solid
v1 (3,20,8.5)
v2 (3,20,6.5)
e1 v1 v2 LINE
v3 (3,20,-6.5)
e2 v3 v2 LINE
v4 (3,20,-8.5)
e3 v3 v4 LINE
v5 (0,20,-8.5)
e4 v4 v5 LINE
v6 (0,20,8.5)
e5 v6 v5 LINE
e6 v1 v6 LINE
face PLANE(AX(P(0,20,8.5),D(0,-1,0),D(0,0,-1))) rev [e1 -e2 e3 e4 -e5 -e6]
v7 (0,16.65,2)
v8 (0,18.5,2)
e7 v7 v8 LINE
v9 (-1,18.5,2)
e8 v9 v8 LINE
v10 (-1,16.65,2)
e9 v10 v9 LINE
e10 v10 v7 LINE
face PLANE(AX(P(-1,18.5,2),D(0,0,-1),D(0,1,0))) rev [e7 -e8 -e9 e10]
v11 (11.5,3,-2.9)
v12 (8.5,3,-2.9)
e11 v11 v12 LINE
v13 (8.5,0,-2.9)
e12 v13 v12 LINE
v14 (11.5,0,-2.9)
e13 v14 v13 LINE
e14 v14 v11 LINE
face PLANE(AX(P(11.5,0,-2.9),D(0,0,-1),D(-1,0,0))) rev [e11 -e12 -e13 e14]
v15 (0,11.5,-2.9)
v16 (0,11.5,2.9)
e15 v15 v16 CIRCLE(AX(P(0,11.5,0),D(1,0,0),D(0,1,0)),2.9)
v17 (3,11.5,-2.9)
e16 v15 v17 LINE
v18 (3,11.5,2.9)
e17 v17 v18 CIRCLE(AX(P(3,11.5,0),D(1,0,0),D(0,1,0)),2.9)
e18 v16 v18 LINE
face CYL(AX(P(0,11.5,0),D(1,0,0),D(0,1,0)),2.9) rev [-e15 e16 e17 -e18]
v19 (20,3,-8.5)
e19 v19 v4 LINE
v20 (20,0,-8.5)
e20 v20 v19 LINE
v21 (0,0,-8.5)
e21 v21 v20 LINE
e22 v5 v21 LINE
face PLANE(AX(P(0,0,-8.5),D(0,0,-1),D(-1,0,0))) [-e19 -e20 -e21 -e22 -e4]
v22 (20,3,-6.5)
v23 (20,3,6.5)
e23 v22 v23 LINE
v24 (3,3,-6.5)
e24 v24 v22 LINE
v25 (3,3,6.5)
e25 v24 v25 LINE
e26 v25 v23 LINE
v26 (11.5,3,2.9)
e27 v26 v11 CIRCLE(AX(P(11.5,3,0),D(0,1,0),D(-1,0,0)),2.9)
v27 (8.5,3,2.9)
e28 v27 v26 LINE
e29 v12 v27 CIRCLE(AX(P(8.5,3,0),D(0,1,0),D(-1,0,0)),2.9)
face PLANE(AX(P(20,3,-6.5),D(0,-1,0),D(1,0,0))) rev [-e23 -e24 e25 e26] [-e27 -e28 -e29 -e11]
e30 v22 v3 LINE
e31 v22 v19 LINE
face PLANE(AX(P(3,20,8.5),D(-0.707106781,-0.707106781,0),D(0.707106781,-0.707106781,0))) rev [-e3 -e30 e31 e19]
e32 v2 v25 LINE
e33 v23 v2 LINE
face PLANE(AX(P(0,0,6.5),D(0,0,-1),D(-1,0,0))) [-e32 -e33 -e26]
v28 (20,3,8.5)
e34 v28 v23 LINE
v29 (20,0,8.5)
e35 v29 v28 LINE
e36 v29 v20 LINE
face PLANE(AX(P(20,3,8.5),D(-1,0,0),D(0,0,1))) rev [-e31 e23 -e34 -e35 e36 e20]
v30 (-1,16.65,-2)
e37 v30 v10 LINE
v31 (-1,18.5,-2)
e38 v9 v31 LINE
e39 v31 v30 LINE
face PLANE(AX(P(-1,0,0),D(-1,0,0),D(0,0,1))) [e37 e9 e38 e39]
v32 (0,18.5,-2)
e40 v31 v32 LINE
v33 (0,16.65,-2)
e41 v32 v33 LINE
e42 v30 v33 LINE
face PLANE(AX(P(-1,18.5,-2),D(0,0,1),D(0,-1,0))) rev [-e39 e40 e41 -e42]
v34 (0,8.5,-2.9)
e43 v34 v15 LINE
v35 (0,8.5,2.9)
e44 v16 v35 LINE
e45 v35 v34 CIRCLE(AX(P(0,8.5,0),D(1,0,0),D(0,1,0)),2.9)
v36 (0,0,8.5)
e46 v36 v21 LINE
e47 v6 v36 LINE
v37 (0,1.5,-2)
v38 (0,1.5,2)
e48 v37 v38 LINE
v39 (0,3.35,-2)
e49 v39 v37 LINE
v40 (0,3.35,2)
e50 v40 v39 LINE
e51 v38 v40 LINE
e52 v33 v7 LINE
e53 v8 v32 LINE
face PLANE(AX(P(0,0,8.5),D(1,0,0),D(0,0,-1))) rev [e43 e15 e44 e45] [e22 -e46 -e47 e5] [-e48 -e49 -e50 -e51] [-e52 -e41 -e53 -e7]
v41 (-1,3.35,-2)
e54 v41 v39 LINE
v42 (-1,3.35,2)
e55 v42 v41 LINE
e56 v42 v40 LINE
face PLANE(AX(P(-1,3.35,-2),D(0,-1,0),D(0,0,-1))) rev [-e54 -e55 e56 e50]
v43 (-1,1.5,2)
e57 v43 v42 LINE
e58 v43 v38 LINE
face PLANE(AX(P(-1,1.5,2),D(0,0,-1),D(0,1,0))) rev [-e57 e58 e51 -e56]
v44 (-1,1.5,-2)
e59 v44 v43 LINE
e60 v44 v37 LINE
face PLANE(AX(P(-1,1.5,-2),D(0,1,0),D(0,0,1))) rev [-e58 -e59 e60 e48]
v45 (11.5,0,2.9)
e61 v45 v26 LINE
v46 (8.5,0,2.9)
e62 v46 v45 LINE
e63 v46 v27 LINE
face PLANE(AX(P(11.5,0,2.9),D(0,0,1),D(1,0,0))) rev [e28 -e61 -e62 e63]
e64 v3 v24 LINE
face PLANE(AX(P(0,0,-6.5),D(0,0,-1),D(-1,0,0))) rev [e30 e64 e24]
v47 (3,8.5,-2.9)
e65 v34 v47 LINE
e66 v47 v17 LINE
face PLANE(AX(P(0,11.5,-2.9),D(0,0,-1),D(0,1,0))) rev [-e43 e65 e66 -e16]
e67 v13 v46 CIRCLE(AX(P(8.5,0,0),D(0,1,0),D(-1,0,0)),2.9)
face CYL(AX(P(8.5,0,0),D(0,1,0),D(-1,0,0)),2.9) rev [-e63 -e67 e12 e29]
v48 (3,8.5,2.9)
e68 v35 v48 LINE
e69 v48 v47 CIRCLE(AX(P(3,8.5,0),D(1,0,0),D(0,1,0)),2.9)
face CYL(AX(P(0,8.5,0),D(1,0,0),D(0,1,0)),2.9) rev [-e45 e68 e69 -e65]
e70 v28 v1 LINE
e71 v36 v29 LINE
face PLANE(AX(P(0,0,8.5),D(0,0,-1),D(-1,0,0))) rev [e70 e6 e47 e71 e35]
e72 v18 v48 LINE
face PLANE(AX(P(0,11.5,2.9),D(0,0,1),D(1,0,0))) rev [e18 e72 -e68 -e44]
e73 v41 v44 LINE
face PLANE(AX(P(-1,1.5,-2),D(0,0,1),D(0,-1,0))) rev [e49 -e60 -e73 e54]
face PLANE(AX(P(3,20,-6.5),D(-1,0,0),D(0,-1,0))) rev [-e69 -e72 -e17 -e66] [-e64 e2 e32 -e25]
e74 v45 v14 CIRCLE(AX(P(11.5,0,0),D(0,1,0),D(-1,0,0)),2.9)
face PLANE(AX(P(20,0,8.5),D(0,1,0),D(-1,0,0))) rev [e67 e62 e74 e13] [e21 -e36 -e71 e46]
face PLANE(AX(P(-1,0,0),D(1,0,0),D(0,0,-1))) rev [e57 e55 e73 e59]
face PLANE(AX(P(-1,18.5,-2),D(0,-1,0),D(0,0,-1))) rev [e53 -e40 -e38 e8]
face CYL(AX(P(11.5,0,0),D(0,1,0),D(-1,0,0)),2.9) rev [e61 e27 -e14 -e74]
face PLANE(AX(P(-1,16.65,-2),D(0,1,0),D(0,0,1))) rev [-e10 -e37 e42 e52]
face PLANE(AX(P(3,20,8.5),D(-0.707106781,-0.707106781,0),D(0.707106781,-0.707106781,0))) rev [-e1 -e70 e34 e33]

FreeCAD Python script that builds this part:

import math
import FreeCAD as App
import Part
import Sketcher
from FreeCAD import Vector

doc = App.newDocument("Part")
body = doc.addObject("PartDesign::Body", "Body")

# Sketch on XY plane
sketch1 = doc.addObject("Sketcher::SketchObject", "Sketch")
body.addObject(sketch1)
sketch1.AttachmentSupport = (doc.XY_Plane, [""])
sketch1.MapMode = "FlatFace"
sketch1.addGeometry(Part.LineSegment(Vector(0, 20, 0), Vector(0, 0, 0)), False)
sketch1.addGeometry(Part.LineSegment(Vector(0, 0, 0), Vector(20, 0, 0)), False)
sketch1.addGeometry(Part.LineSegment(Vector(20, 0, 0), Vector(20, 3, 0)), False)
sketch1.addGeometry(Part.LineSegment(Vector(20, 3, 0), Vector(3, 20, 0)), False)
sketch1.addGeometry(Part.LineSegment(Vector(3, 20, 0), Vector(0, 20, 0)), False)
sketch1.addConstraint(Sketcher.Constraint("Coincident", 0, 2, 1, 1))
sketch1.addConstraint(Sketcher.Constraint("Coincident", 1, 2, 2, 1))
sketch1.addConstraint(Sketcher.Constraint("Coincident", 2, 2, 3, 1))
sketch1.addConstraint(Sketcher.Constraint("Coincident", 3, 2, 4, 1))
sketch1.addConstraint(Sketcher.Constraint("Coincident", 4, 2, 0, 1))
sketch1.addConstraint(Sketcher.Constraint("Vertical", 0))
sketch1.addConstraint(Sketcher.Constraint("Horizontal", 1))
sketch1.addConstraint(Sketcher.Constraint("Vertical", 2))
sketch1.addConstraint(Sketcher.Constraint("Horizontal", 4))
sketch1.addConstraint(Sketcher.Constraint("Coincident", 0, 2, -1, 1))
sketch1.addConstraint(Sketcher.Constraint("Equal", 1, 0))
sketch1.addConstraint(Sketcher.Constraint("Equal", 4, 2))
sketch1.addConstraint(Sketcher.Constraint("DistanceX", 1, 1, 1, 2, 20.0))
sketch1.addConstraint(Sketcher.Constraint("DistanceX", 4, 2, 4, 1, 3.0))
pad1 = doc.addObject("PartDesign::Pad", "Pad")
body.addObject(pad1)
pad1.Profile = sketch1
pad1.Length = 17
pad1.Midplane = True

# Sketch on XY plane
sketch2 = doc.addObject("Sketcher::SketchObject", "Sketch001")
body.addObject(sketch2)
sketch2.AttachmentSupport = (doc.XY_Plane, [""])
sketch2.MapMode = "FlatFace"
sketch2.AttachmentOffset = App.Placement(Vector(0, 0, 6.5), App.Rotation())
sketch2.addGeometry(Part.LineSegment(Vector(3, 20, 0), Vector(3, 3, 0)), False)
sketch2.addGeometry(Part.LineSegment(Vector(3, 3, 0), Vector(20, 3, 0)), False)
sketch2.addGeometry(Part.LineSegment(Vector(20, 3, 0), Vector(3, 20, 0)), False)
sketch2.addConstraint(Sketcher.Constraint("Coincident", 0, 2, 1, 1))
sketch2.addConstraint(Sketcher.Constraint("Coincident", 1, 2, 2, 1))
sketch2.addConstraint(Sketcher.Constraint("Coincident", 2, 2, 0, 1))
sketch2.addConstraint(Sketcher.Constraint("Vertical", 0))
sketch2.addConstraint(Sketcher.Constraint("Horizontal", 1))
sketch2.addConstraint(Sketcher.Constraint("Equal", 1, 0))
sketch2.addConstraint(Sketcher.Constraint("DistanceX", 1, 1, 1, 2, 17.0))
sketch2.addConstraint(Sketcher.Constraint("DistanceX", -1, 1, 0, 2, 3.0))
sketch2.addConstraint(Sketcher.Constraint("DistanceY", -1, 1, 0, 2, 3.0))
pocket1 = doc.addObject("PartDesign::Pocket", "Pocket")
body.addObject(pocket1)
pocket1.Profile = sketch2
pocket1.Length = 13

# Sketch on YZ plane
sketch3 = doc.addObject("Sketcher::SketchObject", "Sketch002")
body.addObject(sketch3)
sketch3.AttachmentSupport = (doc.YZ_Plane, [""])
sketch3.MapMode = "FlatFace"
sketch3.AttachmentOffset = App.Placement(Vector(0, 0, 3), App.Rotation())
sketch3.addGeometry(Part.LineSegment(Vector(8.5, -2.9, 0), Vector(11.5, -2.9, 0)), False)
sketch3.addGeometry(Part.ArcOfCircle(Part.Circle(Vector(11.5, 0, 0), Vector(0, 0, 1), 2.9), math.radians(-90), math.radians(90)), False)
sketch3.addGeometry(Part.LineSegment(Vector(11.5, 2.9, 0), Vector(8.5, 2.9, 0)), False)
sketch3.addGeometry(Part.ArcOfCircle(Part.Circle(Vector(8.5, 0, 0), Vector(0, 0, 1), 2.9), math.radians(90), math.radians(270)), False)
sketch3.addConstraint(Sketcher.Constraint("Tangent", 0, 2, 1, 1))
sketch3.addConstraint(Sketcher.Constraint("Tangent", 1, 2, 2, 1))
sketch3.addConstraint(Sketcher.Constraint("Tangent", 2, 2, 3, 1))
sketch3.addConstraint(Sketcher.Constraint("Tangent", 3, 2, 0, 1))
sketch3.addConstraint(Sketcher.Constraint("Horizontal", 0))
sketch3.addConstraint(Sketcher.Constraint("Horizontal", 2))
sketch3.addConstraint(Sketcher.Constraint("PointOnObject", 1, 3, -1))
sketch3.addConstraint(Sketcher.Constraint("Radius", 1, 2.9))
sketch3.addConstraint(Sketcher.Constraint("DistanceX", 0, 1, 0, 2, 3.0))
sketch3.addConstraint(Sketcher.Constraint("DistanceX", -1, 1, 1, 3, 11.5))
pocket2 = doc.addObject("PartDesign::Pocket", "Pocket001")
body.addObject(pocket2)
pocket2.Profile = sketch3
pocket2.Type = "ThroughAll"

# Sketch on XZ plane
sketch4 = doc.addObject("Sketcher::SketchObject", "Sketch003")
body.addObject(sketch4)
sketch4.AttachmentSupport = (doc.XZ_Plane, [""])
sketch4.MapMode = "FlatFace"
sketch4.AttachmentOffset = App.Placement(Vector(0, 0, -3), App.Rotation())
sketch4.addGeometry(Part.LineSegment(Vector(8.5, 2.9, 0), Vector(11.5, 2.9, 0)), False)
sketch4.addGeometry(Part.ArcOfCircle(Part.Circle(Vector(11.5, 0, 0), Vector(0, 0, 1), 2.9), math.radians(-90), math.radians(90)), False)
sketch4.addGeometry(Part.LineSegment(Vector(11.5, -2.9, 0), Vector(8.5, -2.9, 0)), False)
sketch4.addGeometry(Part.ArcOfCircle(Part.Circle(Vector(8.5, 0, 0), Vector(0, 0, 1), 2.9), math.radians(90), math.radians(270)), False)
sketch4.addConstraint(Sketcher.Constraint("Tangent", 0, 2, 1, 2))
sketch4.addConstraint(Sketcher.Constraint("Tangent", 1, 1, 2, 1))
sketch4.addConstraint(Sketcher.Constraint("Tangent", 2, 2, 3, 2))
sketch4.addConstraint(Sketcher.Constraint("Tangent", 3, 1, 0, 1))
sketch4.addConstraint(Sketcher.Constraint("Horizontal", 0))
sketch4.addConstraint(Sketcher.Constraint("Horizontal", 2))
sketch4.addConstraint(Sketcher.Constraint("PointOnObject", 1, 3, -1))
sketch4.addConstraint(Sketcher.Constraint("Radius", 1, 2.9))
sketch4.addConstraint(Sketcher.Constraint("DistanceX", 0, 1, 0, 2, 3.0))
sketch4.addConstraint(Sketcher.Constraint("DistanceX", -1, 1, 1, 3, 11.5))
pocket3 = doc.addObject("PartDesign::Pocket", "Pocket002")
body.addObject(pocket3)
pocket3.Profile = sketch4
pocket3.Type = "ThroughAll"
pocket3.Reversed = True

# Sketch on YZ plane
sketch5 = doc.addObject("Sketcher::SketchObject", "Sketch004")
body.addObject(sketch5)
sketch5.AttachmentSupport = (doc.YZ_Plane, [""])
sketch5.MapMode = "FlatFace"
sketch5.addGeometry(Part.LineSegment(Vector(18.5, -2, 0), Vector(16.65, -2, 0)), False)
sketch5.addGeometry(Part.LineSegment(Vector(16.65, -2, 0), Vector(16.65, 2, 0)), False)
sketch5.addGeometry(Part.LineSegment(Vector(16.65, 2, 0), Vector(18.5, 2, 0)), False)
sketch5.addGeometry(Part.LineSegment(Vector(18.5, 2, 0), Vector(18.5, -2, 0)), False)
sketch5.addGeometry(Part.LineSegment(Vector(3.35, -2, 0), Vector(1.5, -2, 0)), False)
sketch5.addGeometry(Part.LineSegment(Vector(1.5, -2, 0), Vector(1.5, 2, 0)), False)
sketch5.addGeometry(Part.LineSegment(Vector(1.5, 2, 0), Vector(3.35, 2, 0)), False)
sketch5.addGeometry(Part.LineSegment(Vector(3.35, 2, 0), Vector(3.35, -2, 0)), False)
sketch5.addConstraint(Sketcher.Constraint("Coincident", 0, 2, 1, 1))
sketch5.addConstraint(Sketcher.Constraint("Coincident", 1, 2, 2, 1))
sketch5.addConstraint(Sketcher.Constraint("Coincident", 2, 2, 3, 1))
sketch5.addConstraint(Sketcher.Constraint("Coincident", 3, 2, 0, 1))
sketch5.addConstraint(Sketcher.Constraint("Coincident", 4, 2, 5, 1))
sketch5.addConstraint(Sketcher.Constraint("Coincident", 5, 2, 6, 1))
sketch5.addConstraint(Sketcher.Constraint("Coincident", 6, 2, 7, 1))
sketch5.addConstraint(Sketcher.Constraint("Coincident", 7, 2, 4, 1))
sketch5.addConstraint(Sketcher.Constraint("Horizontal", 0))
sketch5.addConstraint(Sketcher.Constraint("Vertical", 1))
sketch5.addConstraint(Sketcher.Constraint("Horizontal", 2))
sketch5.addConstraint(Sketcher.Constraint("Vertical", 3))
sketch5.addConstraint(Sketcher.Constraint("Horizontal", 4))
sketch5.addConstraint(Sketcher.Constraint("Vertical", 5))
sketch5.addConstraint(Sketcher.Constraint("Horizontal", 6))
sketch5.addConstraint(Sketcher.Constraint("Vertical", 7))
sketch5.addConstraint(Sketcher.Constraint("Horizontal", 3, 2, 4, 2))
sketch5.addConstraint(Sketcher.Constraint("Horizontal", 2, 2, 5, 2))
sketch5.addConstraint(Sketcher.Constraint("Equal", 2, 4))
sketch5.addConstraint(Sketcher.Constraint("DistanceY", 1, 1, 1, 2, 4.0))
sketch5.addConstraint(Sketcher.Constraint("DistanceY", 0, 2, -1, 1, 2.0))
sketch5.addConstraint(Sketcher.Constraint("DistanceX", 4, 2, 3, 2, 17.0))
sketch5.addConstraint(Sketcher.Constraint("DistanceX", 0, 2, 0, 1, 1.85))
sketch5.addConstraint(Sketcher.Constraint("DistanceX", -1, 1, 2, 2, 18.5))
pad2 = doc.addObject("PartDesign::Pad", "Pad001")
body.addObject(pad2)
pad2.Profile = sketch5
pad2.Length = 1
pad2.Reversed = True

doc.recompute()
